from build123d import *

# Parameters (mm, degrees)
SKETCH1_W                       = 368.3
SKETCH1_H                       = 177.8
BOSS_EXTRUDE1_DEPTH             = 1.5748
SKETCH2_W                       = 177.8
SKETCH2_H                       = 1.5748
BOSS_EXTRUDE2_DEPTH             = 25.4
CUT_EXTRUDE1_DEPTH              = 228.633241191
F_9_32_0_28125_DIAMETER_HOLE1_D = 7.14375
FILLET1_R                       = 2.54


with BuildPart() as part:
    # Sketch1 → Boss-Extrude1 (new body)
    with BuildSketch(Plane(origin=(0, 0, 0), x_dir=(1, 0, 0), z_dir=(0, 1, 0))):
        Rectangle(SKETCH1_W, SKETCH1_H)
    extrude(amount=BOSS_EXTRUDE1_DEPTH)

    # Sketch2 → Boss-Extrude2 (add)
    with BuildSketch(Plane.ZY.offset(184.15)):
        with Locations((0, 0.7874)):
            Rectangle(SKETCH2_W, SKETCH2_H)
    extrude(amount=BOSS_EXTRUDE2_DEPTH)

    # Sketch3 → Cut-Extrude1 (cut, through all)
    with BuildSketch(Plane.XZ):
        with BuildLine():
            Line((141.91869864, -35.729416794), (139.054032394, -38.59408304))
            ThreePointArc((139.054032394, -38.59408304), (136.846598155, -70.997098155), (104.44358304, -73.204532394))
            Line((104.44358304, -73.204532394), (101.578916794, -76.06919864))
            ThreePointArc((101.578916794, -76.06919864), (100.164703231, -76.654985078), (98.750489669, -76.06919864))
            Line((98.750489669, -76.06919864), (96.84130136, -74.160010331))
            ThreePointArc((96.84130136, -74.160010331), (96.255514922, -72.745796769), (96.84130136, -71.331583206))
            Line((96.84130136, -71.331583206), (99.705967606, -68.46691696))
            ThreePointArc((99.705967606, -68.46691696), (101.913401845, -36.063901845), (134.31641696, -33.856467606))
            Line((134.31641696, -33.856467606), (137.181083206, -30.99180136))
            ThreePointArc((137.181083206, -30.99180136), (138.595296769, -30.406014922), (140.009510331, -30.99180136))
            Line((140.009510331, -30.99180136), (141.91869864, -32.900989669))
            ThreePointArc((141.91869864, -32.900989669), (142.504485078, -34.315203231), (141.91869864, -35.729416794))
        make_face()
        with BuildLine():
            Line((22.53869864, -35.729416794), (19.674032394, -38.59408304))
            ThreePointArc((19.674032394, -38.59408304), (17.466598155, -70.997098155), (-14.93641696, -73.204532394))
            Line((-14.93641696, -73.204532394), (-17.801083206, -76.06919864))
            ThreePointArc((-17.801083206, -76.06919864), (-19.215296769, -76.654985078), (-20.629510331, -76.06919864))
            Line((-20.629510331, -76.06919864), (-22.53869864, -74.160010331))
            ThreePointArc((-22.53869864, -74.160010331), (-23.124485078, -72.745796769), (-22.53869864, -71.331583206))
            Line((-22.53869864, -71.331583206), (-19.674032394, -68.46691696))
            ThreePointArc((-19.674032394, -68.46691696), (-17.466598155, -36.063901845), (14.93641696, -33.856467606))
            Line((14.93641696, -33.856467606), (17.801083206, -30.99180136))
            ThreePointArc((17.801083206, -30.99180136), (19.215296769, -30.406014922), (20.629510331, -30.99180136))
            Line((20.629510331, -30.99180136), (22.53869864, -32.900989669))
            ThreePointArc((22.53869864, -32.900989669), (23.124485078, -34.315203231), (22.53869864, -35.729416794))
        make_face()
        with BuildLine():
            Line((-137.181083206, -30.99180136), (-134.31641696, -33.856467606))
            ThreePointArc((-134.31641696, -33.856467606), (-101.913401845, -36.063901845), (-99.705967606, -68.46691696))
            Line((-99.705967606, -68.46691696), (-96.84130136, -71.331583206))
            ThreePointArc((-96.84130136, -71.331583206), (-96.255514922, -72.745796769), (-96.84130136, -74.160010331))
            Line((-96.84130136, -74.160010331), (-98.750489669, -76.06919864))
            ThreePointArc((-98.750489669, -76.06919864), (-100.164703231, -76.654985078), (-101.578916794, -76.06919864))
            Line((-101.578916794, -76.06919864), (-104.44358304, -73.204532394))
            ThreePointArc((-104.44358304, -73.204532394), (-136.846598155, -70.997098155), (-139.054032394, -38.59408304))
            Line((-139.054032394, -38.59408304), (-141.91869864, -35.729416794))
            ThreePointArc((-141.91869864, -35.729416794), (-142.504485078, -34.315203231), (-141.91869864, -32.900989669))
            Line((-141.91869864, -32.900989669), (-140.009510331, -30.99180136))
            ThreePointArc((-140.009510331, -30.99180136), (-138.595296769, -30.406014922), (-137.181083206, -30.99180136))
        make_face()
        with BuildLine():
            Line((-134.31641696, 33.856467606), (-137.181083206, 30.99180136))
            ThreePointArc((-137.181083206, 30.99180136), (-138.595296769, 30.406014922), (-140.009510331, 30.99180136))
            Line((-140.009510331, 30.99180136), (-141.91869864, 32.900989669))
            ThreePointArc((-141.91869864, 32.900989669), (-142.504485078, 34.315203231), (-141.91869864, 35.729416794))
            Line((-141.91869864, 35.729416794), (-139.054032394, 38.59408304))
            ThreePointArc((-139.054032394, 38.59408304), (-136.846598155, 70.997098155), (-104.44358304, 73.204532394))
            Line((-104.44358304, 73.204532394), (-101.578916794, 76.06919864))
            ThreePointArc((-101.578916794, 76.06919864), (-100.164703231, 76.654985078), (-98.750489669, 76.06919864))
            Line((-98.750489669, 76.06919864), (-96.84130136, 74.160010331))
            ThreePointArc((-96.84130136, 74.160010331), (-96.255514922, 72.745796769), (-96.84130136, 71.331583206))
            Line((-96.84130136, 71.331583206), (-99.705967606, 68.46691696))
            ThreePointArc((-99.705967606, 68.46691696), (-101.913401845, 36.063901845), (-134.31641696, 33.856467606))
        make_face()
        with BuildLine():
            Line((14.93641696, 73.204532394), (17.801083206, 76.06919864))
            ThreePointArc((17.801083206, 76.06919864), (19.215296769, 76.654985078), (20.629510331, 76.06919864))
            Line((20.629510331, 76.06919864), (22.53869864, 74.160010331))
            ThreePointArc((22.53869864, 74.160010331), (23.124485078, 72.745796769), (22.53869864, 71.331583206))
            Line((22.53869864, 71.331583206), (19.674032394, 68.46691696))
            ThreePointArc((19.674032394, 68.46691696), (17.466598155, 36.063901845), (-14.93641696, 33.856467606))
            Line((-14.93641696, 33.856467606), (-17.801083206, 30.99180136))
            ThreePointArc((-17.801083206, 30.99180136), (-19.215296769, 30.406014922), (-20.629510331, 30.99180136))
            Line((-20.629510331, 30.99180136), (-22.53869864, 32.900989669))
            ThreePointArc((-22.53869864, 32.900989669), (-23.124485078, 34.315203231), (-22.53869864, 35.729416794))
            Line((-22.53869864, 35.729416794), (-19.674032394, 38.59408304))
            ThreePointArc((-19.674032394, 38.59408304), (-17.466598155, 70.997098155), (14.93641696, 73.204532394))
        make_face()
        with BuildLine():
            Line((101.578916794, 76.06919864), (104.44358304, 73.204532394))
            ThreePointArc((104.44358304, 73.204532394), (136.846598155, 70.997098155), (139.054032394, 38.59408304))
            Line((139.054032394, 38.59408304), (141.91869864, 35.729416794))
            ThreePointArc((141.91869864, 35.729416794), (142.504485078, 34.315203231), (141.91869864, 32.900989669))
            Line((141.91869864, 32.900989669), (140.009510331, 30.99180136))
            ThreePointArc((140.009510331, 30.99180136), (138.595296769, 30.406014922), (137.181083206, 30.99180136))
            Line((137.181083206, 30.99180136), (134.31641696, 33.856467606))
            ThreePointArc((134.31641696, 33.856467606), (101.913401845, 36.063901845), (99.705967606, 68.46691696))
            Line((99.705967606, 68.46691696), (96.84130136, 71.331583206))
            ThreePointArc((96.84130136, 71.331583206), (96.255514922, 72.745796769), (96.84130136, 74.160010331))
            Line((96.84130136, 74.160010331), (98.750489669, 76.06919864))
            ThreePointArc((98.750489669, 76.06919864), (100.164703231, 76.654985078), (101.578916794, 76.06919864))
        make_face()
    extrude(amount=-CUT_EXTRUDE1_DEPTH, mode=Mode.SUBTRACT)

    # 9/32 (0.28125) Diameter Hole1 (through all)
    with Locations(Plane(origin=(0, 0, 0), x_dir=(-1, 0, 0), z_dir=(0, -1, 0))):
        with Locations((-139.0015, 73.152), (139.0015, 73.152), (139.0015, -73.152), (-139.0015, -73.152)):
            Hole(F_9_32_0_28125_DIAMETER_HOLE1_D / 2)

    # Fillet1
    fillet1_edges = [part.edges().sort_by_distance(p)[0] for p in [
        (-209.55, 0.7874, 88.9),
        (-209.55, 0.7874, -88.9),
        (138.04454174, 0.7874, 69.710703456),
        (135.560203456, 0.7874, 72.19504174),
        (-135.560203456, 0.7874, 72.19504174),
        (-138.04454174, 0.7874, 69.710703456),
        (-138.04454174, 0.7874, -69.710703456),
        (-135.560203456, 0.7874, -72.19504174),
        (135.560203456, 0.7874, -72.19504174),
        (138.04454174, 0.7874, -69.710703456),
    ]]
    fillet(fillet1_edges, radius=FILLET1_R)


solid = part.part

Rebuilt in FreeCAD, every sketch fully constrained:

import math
import FreeCAD as App
import Part
import Sketcher

V = App.Vector
Q = App.Units.Quantity


def edges_at(feature, points):
    """Names of the edges that pass closest to the given points."""
    edges = feature.Shape.Edges
    near = lambda p: min(range(len(edges)), key=lambda i: edges[i].distToShape(Part.Vertex(*p))[0])
    return sorted({f"Edge{near(p) + 1}" for p in points})

doc = App.newDocument("Part")
body = doc.addObject("PartDesign::Body", "Body")

# Sketch on XZ plane
sketch1 = doc.addObject("Sketcher::SketchObject", "Sketch")
body.addObject(sketch1)
sketch1.AttachmentSupport = (doc.XZ_Plane, [""])
sketch1.MapMode = "FlatFace"
sketch1.addGeometry([
    Part.LineSegment(V(-184, -89, 0), V(-184, 89, 0)),
    Part.LineSegment(V(-184, 89, 0), V(184, 89, 0)),
    Part.LineSegment(V(184, 89, 0), V(184, -89, 0)),
    Part.LineSegment(V(184, -89, 0), V(-184, -89, 0)),
], False)
sketch1.addConstraint([
    Sketcher.Constraint("Coincident", 0, 2, 1, 1),
    Sketcher.Constraint("Coincident", 1, 2, 2, 1),
    Sketcher.Constraint("Coincident", 2, 2, 3, 1),
    Sketcher.Constraint("Coincident", 3, 2, 0, 1),
    Sketcher.Constraint("Vertical", 0),
    Sketcher.Constraint("Horizontal", 1),
    Sketcher.Constraint("Vertical", 2),
    Sketcher.Constraint("Horizontal", 3),
    Sketcher.Constraint("Symmetric", 0, 2, 2, 2, -1, 1),
    Sketcher.Constraint("DistanceY", 0, 1, 0, 2, Q("7 in")),
    Sketcher.Constraint("DistanceX", 1, 1, 1, 2, Q("14.5 in")),
])
pad1 = doc.addObject("PartDesign::Pad", "Pad")
body.addObject(pad1)
pad1.Profile = sketch1
pad1.Length = Q("0.062 in")
pad1.Reversed = True

# Sketch on YZ plane
sketch2 = doc.addObject("Sketcher::SketchObject", "Sketch001")
body.addObject(sketch2)
sketch2.AttachmentSupport = (doc.YZ_Plane, [""])
sketch2.MapMode = "FlatFace"
sketch2.AttachmentOffset = App.Placement(V(0, 0, -7.25 * 25.4), App.Rotation())
sketch2.addGeometry([
    Part.LineSegment(V(1.6, -88.9, 0), V(0, -88.9, 0)),
    Part.LineSegment(V(0, -88.9, 0), V(0, 88.9, 0)),
    Part.LineSegment(V(0, 88.9, 0), V(1.6, 88.9, 0)),
    Part.LineSegment(V(1.6, 88.9, 0), V(1.6, -88.9, 0)),
], False)
sketch2.addConstraint([
    Sketcher.Constraint("Coincident", 0, 2, 1, 1),
    Sketcher.Constraint("Coincident", 1, 2, 2, 1),
    Sketcher.Constraint("Coincident", 2, 2, 3, 1),
    Sketcher.Constraint("Coincident", 3, 2, 0, 1),
    Sketcher.Constraint("Horizontal", 0),
    Sketcher.Constraint("Vertical", 1),
    Sketcher.Constraint("Horizontal", 2),
    Sketcher.Constraint("Vertical", 3),
    Sketcher.Constraint("Symmetric", 0, 2, 1, 2, -1, 1),
    Sketcher.Constraint("DistanceY", 1, 1, 1, 2, Q("7 in")),
    Sketcher.Constraint("DistanceX", 0, 2, 0, 1, Q("0.062 in")),
])
pad2 = doc.addObject("PartDesign::Pad", "Pad001")
body.addObject(pad2)
pad2.Profile = sketch2
pad2.Length = Q("1 in")
pad2.Reversed = True

# Sketch on XZ plane
sketch3 = doc.addObject("Sketcher::SketchObject", "Sketch002")
body.addObject(sketch3)
sketch3.AttachmentSupport = (doc.XZ_Plane, [""])
sketch3.MapMode = "FlatFace"
sketch3.addGeometry([
    Part.LineSegment(V(139.1, -38.6, 0), V(141.9, -35.7, 0)),  # 0
    Part.ArcOfCircle(Part.Circle(V(140.5, -34.3, 0), V(0, 0, 1), 2), math.radians(-45), math.radians(45)),  # 1
    Part.LineSegment(V(141.9, -32.9, 0), V(140, -31, 0)),  # 2
    Part.ArcOfCircle(Part.Circle(V(138.6, -32.4, 0), V(0, 0, 1), 2), math.radians(45), math.radians(135)),  # 3
    Part.LineSegment(V(137.2, -31, 0), V(134.3, -33.9, 0)),  # 4
    Part.ArcOfCircle(Part.Circle(V(119.4, -53.5, 0), V(0, 0, 1), 24.7), math.radians(53), math.radians(217)),  # 5
    Part.LineSegment(V(99.7, -68.5, 0), V(96.8, -71.3, 0)),  # 6
    Part.ArcOfCircle(Part.Circle(V(98.3, -72.7, 0), V(0, 0, 1), 2), math.radians(135), math.radians(225)),  # 7
    Part.LineSegment(V(96.8, -74.2, 0), V(98.8, -76.1, 0)),  # 8
    Part.ArcOfCircle(Part.Circle(V(100.2, -74.7, 0), V(0, 0, 1), 2), math.radians(-135), math.radians(-45)),  # 9
    Part.LineSegment(V(101.6, -76.1, 0), V(104.4, -73.2, 0)),  # 10
    Part.ArcOfCircle(Part.Circle(V(119.4, -53.5, 0), V(0, 0, 1), 24.7), math.radians(-127), math.radians(37)),  # 11
    Part.LineSegment(V(19.7, -38.6, 0), V(22.5, -35.7, 0)),  # 12
    Part.ArcOfCircle(Part.Circle(V(21.1, -34.3, 0), V(0, 0, 1), 2), math.radians(-45), math.radians(45)),  # 13
    Part.LineSegment(V(22.5, -32.9, 0), V(20.6, -31, 0)),  # 14
    Part.ArcOfCircle(Part.Circle(V(19.2, -32.4, 0), V(0, 0, 1), 2), math.radians(45), math.radians(135)),  # 15
    Part.LineSegment(V(17.8, -31, 0), V(14.9, -33.9, 0)),  # 16
    Part.ArcOfCircle(Part.Circle(V(0, -53.5, 0), V(0, 0, 1), 24.7), math.radians(53), math.radians(217)),  # 17
    Part.LineSegment(V(-19.7, -68.5, 0), V(-22.5, -71.3, 0)),  # 18
    Part.ArcOfCircle(Part.Circle(V(-21.1, -72.7, 0), V(0, 0, 1), 2), math.radians(135), math.radians(225)),  # 19
    Part.LineSegment(V(-22.5, -74.2, 0), V(-20.6, -76.1, 0)),  # 20
    Part.ArcOfCircle(Part.Circle(V(-19.2, -74.7, 0), V(0, 0, 1), 2), math.radians(-135), math.radians(-45)),  # 21
    Part.LineSegment(V(-17.8, -76.1, 0), V(-14.9, -73.2, 0)),  # 22
    Part.ArcOfCircle(Part.Circle(V(0, -53.5, 0), V(0, 0, 1), 24.7), math.radians(-127), math.radians(37)),  # 23
    Part.LineSegment(V(-134.3, -33.9, 0), V(-137.2, -31, 0)),  # 24
    Part.ArcOfCircle(Part.Circle(V(-138.6, -32.4, 0), V(0, 0, 1), 2), math.radians(45), math.radians(135)),  # 25
    Part.LineSegment(V(-140, -31, 0), V(-141.9, -32.9, 0)),  # 26
    Part.ArcOfCircle(Part.Circle(V(-140.5, -34.3, 0), V(0, 0, 1), 2), math.radians(135), math.radians(225)),  # 27
    Part.LineSegment(V(-141.9, -35.7, 0), V(-139.1, -38.6, 0)),  # 28
    Part.ArcOfCircle(Part.Circle(V(-119.4, -53.5, 0), V(0, 0, 1), 24.7), math.radians(143), math.radians(307)),  # 29
    Part.LineSegment(V(-104.4, -73.2, 0), V(-101.6, -76.1, 0)),  # 30
    Part.ArcOfCircle(Part.Circle(V(-100.2, -74.7, 0), V(0, 0, 1), 2), math.radians(-135), math.radians(-45)),  # 31
    Part.LineSegment(V(-98.8, -76.1, 0), V(-96.8, -74.2, 0)),  # 32
    Part.ArcOfCircle(Part.Circle(V(-98.3, -72.7, 0), V(0, 0, 1), 2), math.radians(-45), math.radians(45)),  # 33
    Part.LineSegment(V(-96.8, -71.3, 0), V(-99.7, -68.5, 0)),  # 34
    Part.ArcOfCircle(Part.Circle(V(-119.4, -53.5, 0), V(0, 0, 1), 24.7), math.radians(-37), math.radians(127)),  # 35
    Part.LineSegment(V(-137.2, 31, 0), V(-134.3, 33.9, 0)),  # 36
    Part.ArcOfCircle(Part.Circle(V(-119.4, 53.5, 0), V(0, 0, 1), 24.7), math.radians(-127), math.radians(37)),  # 37
    Part.LineSegment(V(-99.7, 68.5, 0), V(-96.8, 71.3, 0)),  # 38
    Part.ArcOfCircle(Part.Circle(V(-98.3, 72.7, 0), V(0, 0, 1), 2), math.radians(-45), math.radians(45)),  # 39
    Part.LineSegment(V(-96.8, 74.2, 0), V(-98.8, 76.1, 0)),  # 40
    Part.ArcOfCircle(Part.Circle(V(-100.2, 74.7, 0), V(0, 0, 1), 2), math.radians(45), math.radians(135)),  # 41
    Part.LineSegment(V(-101.6, 76.1, 0), V(-104.4, 73.2, 0)),  # 42
    Part.ArcOfCircle(Part.Circle(V(-119.4, 53.5, 0), V(0, 0, 1), 24.7), math.radians(53), math.radians(217)),  # 43
    Part.LineSegment(V(-139.1, 38.6, 0), V(-141.9, 35.7, 0)),  # 44
    Part.ArcOfCircle(Part.Circle(V(-140.5, 34.3, 0), V(0, 0, 1), 2), math.radians(135), math.radians(225)),  # 45
    Part.LineSegment(V(-141.9, 32.9, 0), V(-140, 31, 0)),  # 46
    Part.ArcOfCircle(Part.Circle(V(-138.6, 32.4, 0), V(0, 0, 1), 2), math.radians(-135), math.radians(-45)),  # 47
    Part.LineSegment(V(17.8, 76.1, 0), V(14.9, 73.2, 0)),  # 48
    Part.ArcOfCircle(Part.Circle(V(0, 53.5, 0), V(0, 0, 1), 24.7), math.radians(53), math.radians(217)),  # 49
    Part.LineSegment(V(-19.7, 38.6, 0), V(-22.5, 35.7, 0)),  # 50
    Part.ArcOfCircle(Part.Circle(V(-21.1, 34.3, 0), V(0, 0, 1), 2), math.radians(135), math.radians(225)),  # 51
    Part.LineSegment(V(-22.5, 32.9, 0), V(-20.6, 31, 0)),  # 52
    Part.ArcOfCircle(Part.Circle(V(-19.2, 32.4, 0), V(0, 0, 1), 2), math.radians(-135), math.radians(-45)),  # 53
    Part.LineSegment(V(-17.8, 31, 0), V(-14.9, 33.9, 0)),  # 54
    Part.ArcOfCircle(Part.Circle(V(0, 53.5, 0), V(0, 0, 1), 24.7), math.radians(-127), math.radians(37)),  # 55
    Part.LineSegment(V(19.7, 68.5, 0), V(22.5, 71.3, 0)),  # 56
    Part.ArcOfCircle(Part.Circle(V(21.1, 72.7, 0), V(0, 0, 1), 2), math.radians(-45), math.radians(45)),  # 57
    Part.LineSegment(V(22.5, 74.2, 0), V(20.6, 76.1, 0)),  # 58
    Part.ArcOfCircle(Part.Circle(V(19.2, 74.7, 0), V(0, 0, 1), 2), math.radians(45), math.radians(135)),  # 59
    Part.LineSegment(V(104.4, 73.2, 0), V(101.6, 76.1, 0)),  # 60
    Part.ArcOfCircle(Part.Circle(V(100.2, 74.7, 0), V(0, 0, 1), 2), math.radians(45), math.radians(135)),  # 61
    Part.LineSegment(V(98.8, 76.1, 0), V(96.8, 74.2, 0)),  # 62
    Part.ArcOfCircle(Part.Circle(V(98.3, 72.7, 0), V(0, 0, 1), 2), math.radians(135), math.radians(225)),  # 63
    Part.LineSegment(V(96.8, 71.3, 0), V(99.7, 68.5, 0)),  # 64
    Part.ArcOfCircle(Part.Circle(V(119.4, 53.5, 0), V(0, 0, 1), 24.7), math.radians(143), math.radians(307)),  # 65
    Part.LineSegment(V(134.3, 33.9, 0), V(137.2, 31, 0)),  # 66
    Part.ArcOfCircle(Part.Circle(V(138.6, 32.4, 0), V(0, 0, 1), 2), math.radians(-135), math.radians(-45)),  # 67
    Part.LineSegment(V(140, 31, 0), V(141.9, 32.9, 0)),  # 68
    Part.ArcOfCircle(Part.Circle(V(140.5, 34.3, 0), V(0, 0, 1), 2), math.radians(-45), math.radians(45)),  # 69
    Part.LineSegment(V(141.9, 35.7, 0), V(139.1, 38.6, 0)),  # 70
    Part.ArcOfCircle(Part.Circle(V(119.4, 53.5, 0), V(0, 0, 1), 24.7), math.radians(-37), math.radians(127)),  # 71
], False)
sketch3.addConstraint([
    Sketcher.Constraint("Tangent", 0, 2, 1, 1),
    Sketcher.Constraint("Tangent", 1, 2, 2, 1),
    Sketcher.Constraint("Tangent", 2, 2, 3, 1),
    Sketcher.Constraint("Tangent", 3, 2, 4, 1),
    Sketcher.Constraint("Coincident", 4, 2, 5, 1),
    Sketcher.Constraint("Coincident", 5, 2, 6, 1),
    Sketcher.Constraint("Tangent", 6, 2, 7, 1),
    Sketcher.Constraint("Tangent", 7, 2, 8, 1),
    Sketcher.Constraint("Tangent", 8, 2, 9, 1),
    Sketcher.Constraint("Tangent", 9, 2, 10, 1),
    Sketcher.Constraint("Coincident", 10, 2, 11, 1),
    Sketcher.Constraint("Coincident", 11, 2, 0, 1),
    Sketcher.Constraint("Tangent", 12, 2, 13, 1),
    Sketcher.Constraint("Tangent", 13, 2, 14, 1),
    Sketcher.Constraint("Tangent", 14, 2, 15, 1),
    Sketcher.Constraint("Tangent", 15, 2, 16, 1),
    Sketcher.Constraint("Coincident", 16, 2, 17, 1),
    Sketcher.Constraint("Coincident", 17, 2, 18, 1),
    Sketcher.Constraint("Tangent", 18, 2, 19, 1),
    Sketcher.Constraint("Tangent", 19, 2, 20, 1),
    Sketcher.Constraint("Tangent", 20, 2, 21, 1),
    Sketcher.Constraint("Tangent", 21, 2, 22, 1),
    Sketcher.Constraint("Coincident", 22, 2, 23, 1),
    Sketcher.Constraint("Coincident", 23, 2, 12, 1),
    Sketcher.Constraint("Tangent", 24, 2, 25, 1),
    Sketcher.Constraint("Tangent", 25, 2, 26, 1),
    Sketcher.Constraint("Tangent", 26, 2, 27, 1),
    Sketcher.Constraint("Tangent", 27, 2, 28, 1),
    Sketcher.Constraint("Coincident", 28, 2, 29, 1),
    Sketcher.Constraint("Coincident", 29, 2, 30, 1),
    Sketcher.Constraint("Tangent", 30, 2, 31, 1),
    Sketcher.Constraint("Tangent", 31, 2, 32, 1),
    Sketcher.Constraint("Tangent", 32, 2, 33, 1),
    Sketcher.Constraint("Tangent", 33, 2, 34, 1),
    Sketcher.Constraint("Coincident", 34, 2, 35, 1),
    Sketcher.Constraint("Coincident", 35, 2, 24, 1),
    Sketcher.Constraint("Coincident", 36, 2, 37, 1),
    Sketcher.Constraint("Coincident", 37, 2, 38, 1),
    Sketcher.Constraint("Tangent", 38, 2, 39, 1),
    Sketcher.Constraint("Tangent", 39, 2, 40, 1),
    Sketcher.Constraint("Tangent", 40, 2, 41, 1),
    Sketcher.Constraint("Tangent", 41, 2, 42, 1),
    Sketcher.Constraint("Coincident", 42, 2, 43, 1),
    Sketcher.Constraint("Coincident", 43, 2, 44, 1),
    Sketcher.Constraint("Tangent", 44, 2, 45, 1),
    Sketcher.Constraint("Tangent", 45, 2, 46, 1),
    Sketcher.Constraint("Tangent", 46, 2, 47, 1),
    Sketcher.Constraint("Tangent", 47, 2, 36, 1),
    Sketcher.Constraint("Coincident", 48, 2, 49, 1),
    Sketcher.Constraint("Coincident", 49, 2, 50, 1),
    Sketcher.Constraint("Tangent", 50, 2, 51, 1),
    Sketcher.Constraint("Tangent", 51, 2, 52, 1),
    Sketcher.Constraint("Tangent", 52, 2, 53, 1),
    Sketcher.Constraint("Tangent", 53, 2, 54, 1),
    Sketcher.Constraint("Coincident", 54, 2, 55, 1),
    Sketcher.Constraint("Coincident", 55, 2, 56, 1),
    Sketcher.Constraint("Tangent", 56, 2, 57, 1),
    Sketcher.Constraint("Tangent", 57, 2, 58, 1),
    Sketcher.Constraint("Tangent", 58, 2, 59, 1),
    Sketcher.Constraint("Tangent", 59, 2, 48, 1),
    Sketcher.Constraint("Tangent", 60, 2, 61, 1),
    Sketcher.Constraint("Tangent", 61, 2, 62, 1),
    Sketcher.Constraint("Tangent", 62, 2, 63, 1),
    Sketcher.Constraint("Tangent", 63, 2, 64, 1),
    Sketcher.Constraint("Coincident", 64, 2, 65, 1),
    Sketcher.Constraint("Coincident", 65, 2, 66, 1),
    Sketcher.Constraint("Tangent", 66, 2, 67, 1),
    Sketcher.Constraint("Tangent", 67, 2, 68, 1),
    Sketcher.Constraint("Tangent", 68, 2, 69, 1),
    Sketcher.Constraint("Tangent", 69, 2, 70, 1),
    Sketcher.Constraint("Coincident", 70, 2, 71, 1),
    Sketcher.Constraint("Coincident", 71, 2, 60, 1),
    Sketcher.Constraint("Coincident", 11, 3, 5, 3),
    Sketcher.Constraint("Coincident", 23, 3, 17, 3),
    Sketcher.Constraint("Coincident", 35, 3, 29, 3),
    Sketcher.Constraint("Coincident", 43, 3, 37, 3),
    Sketcher.Constraint("Coincident", 55, 3, 49, 3),
    Sketcher.Constraint("Coincident", 71, 3, 65, 3),
    Sketcher.Constraint("Equal", 1, 3),
    Sketcher.Constraint("Equal", 3, 7),
    Sketcher.Constraint("Equal", 7, 9),
    Sketcher.Constraint("Equal", 5, 11),
    Sketcher.Constraint("Equal", 9, 13),
    Sketcher.Constraint("Equal", 13, 15),
    Sketcher.Constraint("Equal", 11, 17),
    Sketcher.Constraint("Equal", 15, 19),
    Sketcher.Constraint("Equal", 19, 21),
    Sketcher.Constraint("Equal", 17, 23),
    Sketcher.Constraint("Equal", 21, 25),
    Sketcher.Constraint("Equal", 25, 27),
    Sketcher.Constraint("Equal", 23, 29),
    Sketcher.Constraint("Equal", 27, 31),
    Sketcher.Constraint("Equal", 31, 33),
    Sketcher.Constraint("Equal", 29, 35),
    Sketcher.Constraint("Equal", 35, 37),
    Sketcher.Constraint("Equal", 33, 39),
    Sketcher.Constraint("Equal", 39, 41),
    Sketcher.Constraint("Equal", 37, 43),
    Sketcher.Constraint("Equal", 41, 45),
    Sketcher.Constraint("Equal", 45, 47),
    Sketcher.Constraint("Equal", 43, 49),
    Sketcher.Constraint("Equal", 47, 51),
    Sketcher.Constraint("Equal", 51, 53),
    Sketcher.Constraint("Equal", 49, 55),
    Sketcher.Constraint("Equal", 53, 57),
    Sketcher.Constraint("Equal", 57, 59),
    Sketcher.Constraint("Equal", 59, 61),
    Sketcher.Constraint("Equal", 61, 63),
    Sketcher.Constraint("Equal", 55, 65),
    Sketcher.Constraint("Equal", 63, 67),
    Sketcher.Constraint("Equal", 67, 69),
    Sketcher.Constraint("Equal", 65, 71),
    Sketcher.Constraint("Symmetric", 5, 3, 37, 3, -1, 1),
    Sketcher.Constraint("Symmetric", 7, 3, 39, 3, -1, 1),
    Sketcher.Constraint("Symmetric", 9, 3, 41, 3, -1, 1),
    Sketcher.Constraint("Symmetric", 1, 3, 45, 3, -1, 1),
    Sketcher.Constraint("Symmetric", 3, 3, 47, 3, -1, 1),
    Sketcher.Constraint("Symmetric", 17, 3, 49, 3, -1, 1),
    Sketcher.Constraint("Symmetric", 13, 3, 51, 3, -1, 1),
    Sketcher.Constraint("Symmetric", 15, 3, 53, 3, -1, 1),
    Sketcher.Constraint("Symmetric", 19, 3, 57, 3, -1, 1),
    Sketcher.Constraint("Symmetric", 21, 3, 59, 3, -1, 1),
    Sketcher.Constraint("Symmetric", 31, 3, 61, 3, -1, 1),
    Sketcher.Constraint("Symmetric", 33, 3, 63, 3, -1, 1),
    Sketcher.Constraint("Symmetric", 29, 3, 65, 3, -1, 1),
    Sketcher.Constraint("Symmetric", 25, 3, 67, 3, -1, 1),
    Sketcher.Constraint("Symmetric", 27, 3, 69, 3, -1, 1),
    Sketcher.Constraint("Symmetric", 3, 3, 25, 3, -2),
    Sketcher.Constraint("Symmetric", 1, 3, 27, 3, -2),
    Sketcher.Constraint("Symmetric", 5, 3, 29, 3, -2),
    Sketcher.Constraint("Symmetric", 9, 3, 31, 3, -2),
    Sketcher.Constraint("Symmetric", 7, 3, 33, 3, -2),
    Sketcher.Constraint("PointOnObject", 17, 3, -2),
    Sketcher.Constraint("Perpendicular", 0, 2),
    Sketcher.Constraint("Perpendicular", 2, 4),
    Sketcher.Constraint("Parallel", 4, 6),
    Sketcher.Constraint("Perpendicular", 6, 8),
    Sketcher.Constraint("Perpendicular", 8, 10),
    Sketcher.Constraint("Parallel", 10, 12),
    Sketcher.Constraint("Perpendicular", 12, 14),
    Sketcher.Constraint("Perpendicular", 14, 16),
    Sketcher.Constraint("Parallel", 16, 18),
    Sketcher.Constraint("Perpendicular", 18, 20),
    Sketcher.Constraint("Perpendicular", 20, 22),
    Sketcher.Constraint("Perpendicular", 22, 24),
    Sketcher.Constraint("Perpendicular", 24, 26),
    Sketcher.Constraint("Perpendicular", 26, 28),
    Sketcher.Constraint("Parallel", 28, 30),
    Sketcher.Constraint("Perpendicular", 32, 34),
    Sketcher.Constraint("Perpendicular", 34, 36),
    Sketcher.Constraint("Parallel", 36, 38),
    Sketcher.Constraint("Perpendicular", 40, 42),
    Sketcher.Constraint("Parallel", 42, 44),
    Sketcher.Constraint("Perpendicular", 46, 48),
    Sketcher.Constraint("Parallel", 48, 50),
    Sketcher.Constraint("Perpendicular", 52, 54),
    Sketcher.Constraint("Parallel", 54, 56),
    Sketcher.Constraint("Parallel", 58, 60),
    Sketcher.Constraint("Perpendicular", 62, 64),
    Sketcher.Constraint("Parallel", 64, 66),
    Sketcher.Constraint("Perpendicular", 68, 70),
    Sketcher.Constraint("Horizontal", 1, 3, 13, 3),
    Sketcher.Constraint("Horizontal", 3, 3, 15, 3),
    Sketcher.Constraint("Horizontal", 11, 3, 17, 3),
    Sketcher.Constraint("Horizontal", 7, 3, 19, 3),
    Sketcher.Constraint("Horizontal", 9, 3, 21, 3),
    Sketcher.Constraint("Horizontal", 4, 2, 16, 2),
    Sketcher.Constraint("Horizontal", 5, 2, 17, 2),
    Sketcher.Constraint("Vertical", 19, 3, 51, 3),
    Sketcher.Constraint("Vertical", 21, 3, 53, 3),
    Sketcher.Constraint("Vertical", 16, 2, 48, 2),
    Sketcher.Constraint("Equal", 0, 4),
    Sketcher.Constraint("DistanceX", -1, 1, 5, 3, Q("4.7 in")),
    Sketcher.Constraint("Radius", 5, Q("0.9725 in")),
    Sketcher.Constraint("Radius", 1, 2.0),
    Sketcher.Constraint("DistanceY", 5, 3, -1, 1, Q("2.1075 in")),
    Sketcher.Constraint("Distance", 2, 2.7),
    Sketcher.Constraint("DistanceX", -1, 1, 0, 2, 141.918699),
])
pocket1 = doc.addObject("PartDesign::Pocket", "Pocket")
body.addObject(pocket1)
pocket1.Profile = sketch3
pocket1.Type = "ThroughAll"

# Sketch on XZ plane
sketch4 = doc.addObject("Sketcher::SketchObject", "Sketch003")
body.addObject(sketch4)
sketch4.AttachmentSupport = (doc.XZ_Plane, [""])
sketch4.MapMode = "FlatFace"
sketch4.addGeometry([
    Part.Circle(V(139, -73.2, 0), V(0, 0, 1), 3.6),
    Part.Circle(V(-139, -73.2, 0), V(0, 0, 1), 3.6),
    Part.Circle(V(-139, 73.2, 0), V(0, 0, 1), 3.6),
    Part.Circle(V(139, 73.2, 0), V(0, 0, 1), 3.6),
], False)
sketch4.addConstraint([
    Sketcher.Constraint("Equal", 0, 1),
    Sketcher.Constraint("Equal", 1, 2),
    Sketcher.Constraint("Equal", 2, 3),
    Sketcher.Constraint("Symmetric", 0, 3, 2, 3, -1, 1),
    Sketcher.Constraint("Symmetric", 1, 3, 3, 3, -1, 1),
    Sketcher.Constraint("Symmetric", 0, 3, 1, 3, -2),
    Sketcher.Constraint("Diameter", 0, Q("0.28125 in")),
    Sketcher.Constraint("DistanceY", 0, 3, -1, 1, Q("2.88 in")),
    Sketcher.Constraint("DistanceX", 1, 3, 0, 3, Q("10.945 in")),
])
doc.recompute()
hole = doc.addObject("PartDesign::Hole", "Hole")
body.addObject(hole)
hole.Profile = sketch4
hole.ThreadType = "None"
hole.Diameter = Q("0.28125 in")
hole.DepthType = "ThroughAll"
doc.recompute()

fillet = doc.addObject("PartDesign::Fillet", "Fillet")
body.addObject(fillet)
fillet.Base = (hole, edges_at(hole, [
    (-209.55, 0.787, 88.9),
    (-209.55, 0.787, -88.9),
    (138.045, 0.787, 69.711),
    (135.56, 0.787, 72.195),
    (-135.56, 0.787, 72.195),
    (-138.045, 0.787, 69.711),
    (-138.045, 0.787, -69.711),
    (-135.56, 0.787, -72.195),
    (135.56, 0.787, -72.195),
    (138.045, 0.787, -69.711),
]))
fillet.Radius = Q("0.1 in")

doc.recompute()
